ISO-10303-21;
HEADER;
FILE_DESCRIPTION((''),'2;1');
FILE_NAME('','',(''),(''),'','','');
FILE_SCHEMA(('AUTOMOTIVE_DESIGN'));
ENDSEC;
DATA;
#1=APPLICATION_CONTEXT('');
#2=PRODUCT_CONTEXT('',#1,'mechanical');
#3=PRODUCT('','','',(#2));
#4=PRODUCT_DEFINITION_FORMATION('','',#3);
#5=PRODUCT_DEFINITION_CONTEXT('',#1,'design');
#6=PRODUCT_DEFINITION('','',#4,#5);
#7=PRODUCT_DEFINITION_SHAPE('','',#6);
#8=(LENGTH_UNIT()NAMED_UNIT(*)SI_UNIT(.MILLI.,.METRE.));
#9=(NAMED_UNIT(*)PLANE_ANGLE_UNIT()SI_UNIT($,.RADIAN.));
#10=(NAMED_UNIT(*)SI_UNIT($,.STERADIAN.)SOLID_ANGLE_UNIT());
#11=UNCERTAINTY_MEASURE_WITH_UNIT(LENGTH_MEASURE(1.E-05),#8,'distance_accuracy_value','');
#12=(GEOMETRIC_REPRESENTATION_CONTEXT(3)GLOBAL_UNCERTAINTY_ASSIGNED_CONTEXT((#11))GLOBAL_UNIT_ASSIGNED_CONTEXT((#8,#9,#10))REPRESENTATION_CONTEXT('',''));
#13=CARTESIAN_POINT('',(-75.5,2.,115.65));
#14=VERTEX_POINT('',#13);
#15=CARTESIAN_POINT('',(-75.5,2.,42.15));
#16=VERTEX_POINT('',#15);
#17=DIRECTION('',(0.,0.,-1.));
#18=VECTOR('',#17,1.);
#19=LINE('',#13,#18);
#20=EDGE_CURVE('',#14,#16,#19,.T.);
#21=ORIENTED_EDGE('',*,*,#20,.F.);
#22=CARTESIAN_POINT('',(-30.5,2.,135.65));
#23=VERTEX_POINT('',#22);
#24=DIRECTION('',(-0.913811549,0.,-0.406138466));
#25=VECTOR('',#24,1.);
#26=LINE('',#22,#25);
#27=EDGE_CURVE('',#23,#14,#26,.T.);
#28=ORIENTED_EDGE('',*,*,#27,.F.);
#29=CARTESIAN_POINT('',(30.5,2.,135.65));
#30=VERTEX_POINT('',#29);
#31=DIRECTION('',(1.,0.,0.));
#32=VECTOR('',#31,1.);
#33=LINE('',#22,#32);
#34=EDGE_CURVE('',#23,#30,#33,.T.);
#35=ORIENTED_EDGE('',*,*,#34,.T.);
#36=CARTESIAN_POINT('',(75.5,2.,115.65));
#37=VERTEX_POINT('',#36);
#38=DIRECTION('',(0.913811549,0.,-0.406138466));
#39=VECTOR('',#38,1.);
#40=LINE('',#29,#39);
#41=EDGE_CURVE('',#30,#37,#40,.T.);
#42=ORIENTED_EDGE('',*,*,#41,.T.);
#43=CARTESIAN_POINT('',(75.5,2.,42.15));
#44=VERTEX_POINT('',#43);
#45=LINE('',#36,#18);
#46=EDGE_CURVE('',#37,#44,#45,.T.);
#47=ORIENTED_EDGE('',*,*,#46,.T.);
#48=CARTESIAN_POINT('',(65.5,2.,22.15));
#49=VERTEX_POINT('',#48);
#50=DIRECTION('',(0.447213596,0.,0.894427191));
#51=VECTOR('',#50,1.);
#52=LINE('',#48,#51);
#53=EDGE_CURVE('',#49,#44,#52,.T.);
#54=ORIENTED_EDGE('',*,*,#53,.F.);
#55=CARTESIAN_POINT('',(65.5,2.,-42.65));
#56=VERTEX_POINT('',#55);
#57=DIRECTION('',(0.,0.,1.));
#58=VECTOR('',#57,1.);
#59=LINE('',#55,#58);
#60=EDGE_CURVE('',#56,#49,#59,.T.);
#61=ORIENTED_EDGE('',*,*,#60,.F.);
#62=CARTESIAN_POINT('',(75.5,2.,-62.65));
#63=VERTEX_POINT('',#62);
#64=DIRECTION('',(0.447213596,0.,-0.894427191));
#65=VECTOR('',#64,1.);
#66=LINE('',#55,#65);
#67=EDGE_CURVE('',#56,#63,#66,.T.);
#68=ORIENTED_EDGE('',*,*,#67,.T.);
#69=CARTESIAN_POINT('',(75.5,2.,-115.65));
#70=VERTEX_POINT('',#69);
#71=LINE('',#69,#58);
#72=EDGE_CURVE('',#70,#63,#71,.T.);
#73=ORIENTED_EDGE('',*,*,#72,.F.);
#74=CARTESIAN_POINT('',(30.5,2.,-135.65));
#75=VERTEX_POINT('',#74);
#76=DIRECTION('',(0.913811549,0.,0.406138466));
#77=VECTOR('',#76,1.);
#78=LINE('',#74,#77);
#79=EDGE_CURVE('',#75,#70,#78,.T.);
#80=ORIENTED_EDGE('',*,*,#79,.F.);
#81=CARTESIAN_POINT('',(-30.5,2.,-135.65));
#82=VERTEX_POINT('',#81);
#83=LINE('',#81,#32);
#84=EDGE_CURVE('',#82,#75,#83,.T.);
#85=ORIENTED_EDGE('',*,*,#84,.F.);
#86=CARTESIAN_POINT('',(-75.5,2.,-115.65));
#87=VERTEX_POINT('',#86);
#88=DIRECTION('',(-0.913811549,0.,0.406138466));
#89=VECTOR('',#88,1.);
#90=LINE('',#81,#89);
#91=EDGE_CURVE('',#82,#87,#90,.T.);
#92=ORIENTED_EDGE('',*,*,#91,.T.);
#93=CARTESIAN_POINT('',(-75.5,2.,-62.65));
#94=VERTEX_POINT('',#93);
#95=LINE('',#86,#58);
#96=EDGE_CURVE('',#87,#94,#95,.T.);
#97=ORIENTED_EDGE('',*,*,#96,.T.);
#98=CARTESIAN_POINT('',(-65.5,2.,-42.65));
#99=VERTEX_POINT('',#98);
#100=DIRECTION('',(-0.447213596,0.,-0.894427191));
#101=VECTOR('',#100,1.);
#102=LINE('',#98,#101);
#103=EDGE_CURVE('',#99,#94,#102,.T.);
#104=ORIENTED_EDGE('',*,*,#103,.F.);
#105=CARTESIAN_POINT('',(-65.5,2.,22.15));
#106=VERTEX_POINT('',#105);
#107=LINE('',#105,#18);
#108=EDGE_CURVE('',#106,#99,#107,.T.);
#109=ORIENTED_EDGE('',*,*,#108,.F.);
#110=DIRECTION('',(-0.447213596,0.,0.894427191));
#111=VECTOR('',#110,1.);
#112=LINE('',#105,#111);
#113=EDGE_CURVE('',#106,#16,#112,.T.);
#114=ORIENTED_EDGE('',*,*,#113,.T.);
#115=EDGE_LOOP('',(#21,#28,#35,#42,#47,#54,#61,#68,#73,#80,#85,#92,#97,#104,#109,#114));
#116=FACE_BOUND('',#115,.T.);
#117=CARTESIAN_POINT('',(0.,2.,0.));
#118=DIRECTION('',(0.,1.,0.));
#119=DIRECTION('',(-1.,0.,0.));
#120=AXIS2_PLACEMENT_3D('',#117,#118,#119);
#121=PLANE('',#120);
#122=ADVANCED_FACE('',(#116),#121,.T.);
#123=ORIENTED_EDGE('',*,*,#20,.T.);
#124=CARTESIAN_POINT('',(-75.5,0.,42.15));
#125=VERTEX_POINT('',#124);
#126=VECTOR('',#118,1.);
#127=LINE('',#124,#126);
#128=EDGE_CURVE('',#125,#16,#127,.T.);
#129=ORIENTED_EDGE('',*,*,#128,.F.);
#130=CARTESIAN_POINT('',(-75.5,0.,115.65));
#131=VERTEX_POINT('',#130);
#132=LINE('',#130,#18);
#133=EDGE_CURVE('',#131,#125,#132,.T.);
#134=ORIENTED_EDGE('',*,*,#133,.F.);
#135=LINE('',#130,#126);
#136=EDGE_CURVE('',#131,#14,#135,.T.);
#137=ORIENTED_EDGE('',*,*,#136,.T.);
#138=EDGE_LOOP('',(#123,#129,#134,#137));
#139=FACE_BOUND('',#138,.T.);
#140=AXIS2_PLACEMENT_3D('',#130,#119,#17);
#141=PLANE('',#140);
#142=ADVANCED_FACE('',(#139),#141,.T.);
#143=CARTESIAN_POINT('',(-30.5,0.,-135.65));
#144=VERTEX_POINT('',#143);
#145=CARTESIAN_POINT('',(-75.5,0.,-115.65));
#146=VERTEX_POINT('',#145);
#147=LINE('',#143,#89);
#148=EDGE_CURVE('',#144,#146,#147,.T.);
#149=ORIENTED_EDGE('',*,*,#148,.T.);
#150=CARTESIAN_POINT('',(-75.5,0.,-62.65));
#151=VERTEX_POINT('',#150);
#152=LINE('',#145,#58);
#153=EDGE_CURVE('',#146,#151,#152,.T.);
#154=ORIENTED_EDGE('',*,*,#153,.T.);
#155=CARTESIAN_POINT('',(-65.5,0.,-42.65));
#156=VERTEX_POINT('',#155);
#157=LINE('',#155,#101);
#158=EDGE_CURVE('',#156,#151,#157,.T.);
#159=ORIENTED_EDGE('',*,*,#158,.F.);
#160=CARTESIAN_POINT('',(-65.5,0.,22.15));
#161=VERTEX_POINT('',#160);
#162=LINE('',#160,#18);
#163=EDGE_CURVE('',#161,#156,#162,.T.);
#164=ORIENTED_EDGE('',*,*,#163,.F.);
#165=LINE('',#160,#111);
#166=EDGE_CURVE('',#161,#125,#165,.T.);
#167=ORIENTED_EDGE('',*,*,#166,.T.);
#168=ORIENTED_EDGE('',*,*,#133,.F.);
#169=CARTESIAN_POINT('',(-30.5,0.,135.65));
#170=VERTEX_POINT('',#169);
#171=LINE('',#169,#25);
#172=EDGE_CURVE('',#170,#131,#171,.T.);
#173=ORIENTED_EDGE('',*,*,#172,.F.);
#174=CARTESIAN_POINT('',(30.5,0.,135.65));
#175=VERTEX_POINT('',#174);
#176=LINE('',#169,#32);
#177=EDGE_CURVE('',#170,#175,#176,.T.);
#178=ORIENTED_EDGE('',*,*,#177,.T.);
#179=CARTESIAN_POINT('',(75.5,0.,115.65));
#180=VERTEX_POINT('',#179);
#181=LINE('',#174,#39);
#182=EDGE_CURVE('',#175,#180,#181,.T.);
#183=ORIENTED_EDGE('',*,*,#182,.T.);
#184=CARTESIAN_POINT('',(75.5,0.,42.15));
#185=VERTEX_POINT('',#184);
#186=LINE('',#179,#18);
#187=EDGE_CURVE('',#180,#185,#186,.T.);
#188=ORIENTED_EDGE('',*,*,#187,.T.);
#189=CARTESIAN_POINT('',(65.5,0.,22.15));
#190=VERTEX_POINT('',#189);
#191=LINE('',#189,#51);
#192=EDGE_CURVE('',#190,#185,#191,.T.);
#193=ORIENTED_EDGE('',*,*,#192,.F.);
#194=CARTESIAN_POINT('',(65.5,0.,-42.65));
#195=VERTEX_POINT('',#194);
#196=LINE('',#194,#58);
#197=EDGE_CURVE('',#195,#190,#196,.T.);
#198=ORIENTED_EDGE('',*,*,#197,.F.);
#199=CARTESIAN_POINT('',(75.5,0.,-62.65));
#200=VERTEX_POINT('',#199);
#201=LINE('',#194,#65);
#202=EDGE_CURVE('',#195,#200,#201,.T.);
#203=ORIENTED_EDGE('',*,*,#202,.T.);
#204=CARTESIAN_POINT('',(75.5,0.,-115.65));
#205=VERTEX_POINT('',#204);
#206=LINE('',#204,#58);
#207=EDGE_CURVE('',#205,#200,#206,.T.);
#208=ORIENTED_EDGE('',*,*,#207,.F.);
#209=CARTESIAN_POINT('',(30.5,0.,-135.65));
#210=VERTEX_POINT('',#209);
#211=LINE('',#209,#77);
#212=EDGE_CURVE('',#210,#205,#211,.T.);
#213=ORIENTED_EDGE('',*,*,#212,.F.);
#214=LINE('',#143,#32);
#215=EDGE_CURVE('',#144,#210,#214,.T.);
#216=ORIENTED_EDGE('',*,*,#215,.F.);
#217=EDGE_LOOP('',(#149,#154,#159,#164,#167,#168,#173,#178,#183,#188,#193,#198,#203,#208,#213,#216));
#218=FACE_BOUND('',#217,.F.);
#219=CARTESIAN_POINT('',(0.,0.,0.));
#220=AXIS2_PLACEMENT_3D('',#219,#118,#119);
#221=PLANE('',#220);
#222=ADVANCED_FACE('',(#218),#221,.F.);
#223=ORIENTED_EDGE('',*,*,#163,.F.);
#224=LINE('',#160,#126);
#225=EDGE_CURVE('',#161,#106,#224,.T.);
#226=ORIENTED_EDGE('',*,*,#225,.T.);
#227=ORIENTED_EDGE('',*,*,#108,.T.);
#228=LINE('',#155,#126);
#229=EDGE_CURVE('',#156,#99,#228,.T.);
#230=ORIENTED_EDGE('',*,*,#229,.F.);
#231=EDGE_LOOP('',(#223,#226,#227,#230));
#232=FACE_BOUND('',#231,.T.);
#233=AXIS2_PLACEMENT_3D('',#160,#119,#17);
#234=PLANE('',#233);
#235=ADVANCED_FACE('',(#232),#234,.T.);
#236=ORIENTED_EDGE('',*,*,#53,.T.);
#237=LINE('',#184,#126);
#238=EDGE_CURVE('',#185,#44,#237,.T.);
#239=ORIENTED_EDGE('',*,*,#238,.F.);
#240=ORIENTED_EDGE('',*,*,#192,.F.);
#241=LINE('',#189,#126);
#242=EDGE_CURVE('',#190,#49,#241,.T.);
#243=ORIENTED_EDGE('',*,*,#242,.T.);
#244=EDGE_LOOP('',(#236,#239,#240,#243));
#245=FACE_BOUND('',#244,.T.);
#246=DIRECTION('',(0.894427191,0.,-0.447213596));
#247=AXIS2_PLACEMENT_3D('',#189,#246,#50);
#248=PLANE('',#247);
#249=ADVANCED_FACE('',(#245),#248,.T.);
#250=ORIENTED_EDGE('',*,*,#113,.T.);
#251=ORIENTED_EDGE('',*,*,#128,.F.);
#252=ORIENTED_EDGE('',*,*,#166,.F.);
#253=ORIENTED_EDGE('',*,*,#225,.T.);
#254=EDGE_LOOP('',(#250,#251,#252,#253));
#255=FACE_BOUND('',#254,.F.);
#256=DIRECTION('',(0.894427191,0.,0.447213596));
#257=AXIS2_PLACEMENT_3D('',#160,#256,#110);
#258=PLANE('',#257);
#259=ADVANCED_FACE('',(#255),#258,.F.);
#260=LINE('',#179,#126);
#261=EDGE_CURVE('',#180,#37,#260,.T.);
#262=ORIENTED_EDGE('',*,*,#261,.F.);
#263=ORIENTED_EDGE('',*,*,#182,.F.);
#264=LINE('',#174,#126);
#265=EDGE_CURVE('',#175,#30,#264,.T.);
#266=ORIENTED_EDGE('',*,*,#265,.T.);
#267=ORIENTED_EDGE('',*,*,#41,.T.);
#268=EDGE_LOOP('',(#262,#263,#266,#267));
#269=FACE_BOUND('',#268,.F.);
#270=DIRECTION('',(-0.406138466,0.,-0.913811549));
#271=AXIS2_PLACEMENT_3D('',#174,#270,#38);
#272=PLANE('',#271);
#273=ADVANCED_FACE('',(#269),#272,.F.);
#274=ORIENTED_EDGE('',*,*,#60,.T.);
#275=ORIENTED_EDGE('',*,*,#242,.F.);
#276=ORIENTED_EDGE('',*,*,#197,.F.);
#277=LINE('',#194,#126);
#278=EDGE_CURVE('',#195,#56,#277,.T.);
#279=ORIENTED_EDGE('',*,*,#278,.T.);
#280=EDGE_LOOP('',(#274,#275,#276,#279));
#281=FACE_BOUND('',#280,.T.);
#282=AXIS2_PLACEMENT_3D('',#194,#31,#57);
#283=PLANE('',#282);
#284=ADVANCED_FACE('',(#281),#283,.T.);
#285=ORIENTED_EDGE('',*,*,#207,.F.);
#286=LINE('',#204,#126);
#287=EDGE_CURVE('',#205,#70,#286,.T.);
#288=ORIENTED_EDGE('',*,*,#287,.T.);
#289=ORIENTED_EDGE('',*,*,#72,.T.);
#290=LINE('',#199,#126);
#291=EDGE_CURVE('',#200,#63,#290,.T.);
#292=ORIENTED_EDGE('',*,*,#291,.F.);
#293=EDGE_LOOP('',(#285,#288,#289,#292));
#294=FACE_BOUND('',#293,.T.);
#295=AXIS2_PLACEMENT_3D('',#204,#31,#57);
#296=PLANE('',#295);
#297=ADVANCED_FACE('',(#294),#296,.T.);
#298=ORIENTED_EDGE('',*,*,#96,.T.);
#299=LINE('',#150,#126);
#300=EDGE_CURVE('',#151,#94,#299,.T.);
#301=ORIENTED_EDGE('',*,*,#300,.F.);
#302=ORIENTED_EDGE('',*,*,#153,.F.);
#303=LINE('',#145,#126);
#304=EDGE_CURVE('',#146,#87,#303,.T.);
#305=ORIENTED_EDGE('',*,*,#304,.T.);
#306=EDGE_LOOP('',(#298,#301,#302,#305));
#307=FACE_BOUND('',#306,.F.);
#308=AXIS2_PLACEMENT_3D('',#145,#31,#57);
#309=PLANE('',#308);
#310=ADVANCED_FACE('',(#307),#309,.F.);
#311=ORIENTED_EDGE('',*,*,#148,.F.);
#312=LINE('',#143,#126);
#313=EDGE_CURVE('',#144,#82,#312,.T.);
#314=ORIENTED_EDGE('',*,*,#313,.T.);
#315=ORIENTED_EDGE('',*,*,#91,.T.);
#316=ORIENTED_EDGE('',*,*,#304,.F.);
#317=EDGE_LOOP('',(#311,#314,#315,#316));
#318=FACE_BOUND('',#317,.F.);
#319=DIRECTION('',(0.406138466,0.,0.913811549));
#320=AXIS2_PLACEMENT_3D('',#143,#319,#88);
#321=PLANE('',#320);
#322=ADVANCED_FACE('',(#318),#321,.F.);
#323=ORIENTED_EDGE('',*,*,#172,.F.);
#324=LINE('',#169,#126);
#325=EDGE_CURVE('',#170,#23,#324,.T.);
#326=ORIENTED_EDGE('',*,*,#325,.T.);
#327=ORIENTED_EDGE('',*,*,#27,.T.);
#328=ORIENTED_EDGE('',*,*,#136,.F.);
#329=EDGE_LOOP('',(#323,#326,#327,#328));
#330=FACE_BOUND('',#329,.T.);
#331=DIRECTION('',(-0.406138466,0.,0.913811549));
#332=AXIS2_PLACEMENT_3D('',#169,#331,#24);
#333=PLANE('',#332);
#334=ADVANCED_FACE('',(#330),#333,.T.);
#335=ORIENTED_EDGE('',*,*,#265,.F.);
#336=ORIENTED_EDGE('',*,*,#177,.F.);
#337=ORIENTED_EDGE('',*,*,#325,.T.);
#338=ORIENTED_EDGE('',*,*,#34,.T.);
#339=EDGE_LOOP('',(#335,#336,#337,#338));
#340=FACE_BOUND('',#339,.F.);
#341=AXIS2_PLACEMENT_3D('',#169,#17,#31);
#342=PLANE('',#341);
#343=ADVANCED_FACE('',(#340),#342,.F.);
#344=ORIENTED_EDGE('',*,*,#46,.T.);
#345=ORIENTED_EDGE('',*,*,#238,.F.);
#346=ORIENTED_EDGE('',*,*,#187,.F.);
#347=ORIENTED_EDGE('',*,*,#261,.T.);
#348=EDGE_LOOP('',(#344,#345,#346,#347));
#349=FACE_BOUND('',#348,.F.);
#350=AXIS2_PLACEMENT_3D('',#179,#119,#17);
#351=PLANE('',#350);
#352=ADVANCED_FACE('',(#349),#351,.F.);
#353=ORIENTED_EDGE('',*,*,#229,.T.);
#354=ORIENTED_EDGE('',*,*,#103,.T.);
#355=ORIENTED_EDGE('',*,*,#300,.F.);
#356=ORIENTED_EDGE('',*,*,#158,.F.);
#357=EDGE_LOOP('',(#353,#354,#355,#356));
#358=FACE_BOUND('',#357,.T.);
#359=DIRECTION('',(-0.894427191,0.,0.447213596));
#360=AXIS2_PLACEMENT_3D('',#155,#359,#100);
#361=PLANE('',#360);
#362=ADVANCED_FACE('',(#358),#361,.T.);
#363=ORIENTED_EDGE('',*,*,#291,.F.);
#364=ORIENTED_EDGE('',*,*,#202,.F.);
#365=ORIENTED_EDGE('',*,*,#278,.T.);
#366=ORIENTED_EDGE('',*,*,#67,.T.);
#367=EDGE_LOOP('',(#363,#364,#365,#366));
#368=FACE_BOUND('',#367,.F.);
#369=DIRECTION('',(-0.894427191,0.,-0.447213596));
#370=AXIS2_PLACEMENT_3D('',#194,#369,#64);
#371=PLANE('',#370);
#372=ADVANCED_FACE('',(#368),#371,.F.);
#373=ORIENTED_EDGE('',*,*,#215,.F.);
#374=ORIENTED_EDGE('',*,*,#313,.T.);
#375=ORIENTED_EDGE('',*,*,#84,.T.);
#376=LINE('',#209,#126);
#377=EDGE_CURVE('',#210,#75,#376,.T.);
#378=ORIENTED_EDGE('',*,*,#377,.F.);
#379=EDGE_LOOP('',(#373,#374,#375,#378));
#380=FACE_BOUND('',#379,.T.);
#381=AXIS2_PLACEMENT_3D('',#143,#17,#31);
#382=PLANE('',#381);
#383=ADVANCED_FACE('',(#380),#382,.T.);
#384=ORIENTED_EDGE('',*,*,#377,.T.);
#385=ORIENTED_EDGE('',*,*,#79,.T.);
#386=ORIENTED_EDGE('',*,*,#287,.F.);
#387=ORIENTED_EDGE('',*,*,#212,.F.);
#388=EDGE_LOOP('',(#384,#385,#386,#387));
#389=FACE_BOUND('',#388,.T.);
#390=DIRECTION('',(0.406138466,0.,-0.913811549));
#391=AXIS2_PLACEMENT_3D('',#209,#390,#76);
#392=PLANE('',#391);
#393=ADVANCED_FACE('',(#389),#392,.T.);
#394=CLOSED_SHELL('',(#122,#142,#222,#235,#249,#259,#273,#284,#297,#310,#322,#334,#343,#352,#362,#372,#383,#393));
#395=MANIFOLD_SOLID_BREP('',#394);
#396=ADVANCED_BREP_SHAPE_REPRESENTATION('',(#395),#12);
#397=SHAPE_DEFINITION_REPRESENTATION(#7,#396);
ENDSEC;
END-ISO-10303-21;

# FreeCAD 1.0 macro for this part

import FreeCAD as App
import Part
import Sketcher
Q = App.Units.Quantity


def add_polygon(sketch, points):
    """Adds a closed chain of lines whose ends are joined by coincident constraints."""
    first, n = sketch.GeometryCount, len(points)
    for a, b in zip(points, points[1:] + points[:1]):
        sketch.addGeometry(Part.LineSegment(App.Vector(*a, 0), App.Vector(*b, 0)), False)
    for i in range(n):
        sketch.addConstraint(Sketcher.Constraint("Coincident", first + i, 2, first + (i + 1) % n, 1))

doc = App.newDocument("Part")
params = doc.addObject("Spreadsheet::Sheet", "Params")
for row, (alias, value) in enumerate([
    ("sketch1_width", "61 mm"),
    ("sketch1_height", "53 mm"),
    ("sketch1_height2", "64.8 mm"),
    ("sketch1_height3", "73.5 mm"),
    ("pad1_length", "2 mm"),
], start=1):
    params.set(f"A{row}", alias)
    params.set(f"B{row}", "=" + value)
    params.setAlias(f"B{row}", alias)

body = doc.addObject("PartDesign::Body", "Body")

sketch1 = doc.addObject("Sketcher::SketchObject", "Sketch")
body.addObject(sketch1)
sketch1.AttachmentSupport = (doc.XZ_Plane, [""])
sketch1.MapMode = "FlatFace"
add_polygon(sketch1, [(75.5, -62.65), (75.5, -115.65), (30.5, -135.65), (-30.5, -135.65), (-75.5, -115.65), (-75.5, -62.65), (-65.5, -42.65), (-65.5, 22.15), (-75.5, 42.15), (-75.5, 115.65), (-30.5, 135.65), (30.5, 135.65), (75.5, 115.65), (75.5, 42.15), (65.5, 22.15), (65.5, -42.65)])
sketch1.addConstraint(Sketcher.Constraint("Vertical", 0))
sketch1.addConstraint(Sketcher.Constraint("Horizontal", 2))
sketch1.addConstraint(Sketcher.Constraint("Vertical", 4))
sketch1.addConstraint(Sketcher.Constraint("Vertical", 6))
sketch1.addConstraint(Sketcher.Constraint("Vertical", 8))
sketch1.addConstraint(Sketcher.Constraint("Horizontal", 10))
sketch1.addConstraint(Sketcher.Constraint("Vertical", 12))
sketch1.addConstraint(Sketcher.Constraint("Vertical", 14))
sketch1.addConstraint(Sketcher.Constraint("Symmetric", 0, 2, 8, 2, -1, 1))
sketch1.addConstraint(Sketcher.Constraint("Symmetric", 1, 2, 9, 2, -1, 1))
sketch1.addConstraint(Sketcher.Constraint("Symmetric", 3, 2, 11, 2, -1, 1))
sketch1.addConstraint(Sketcher.Constraint("Symmetric", 0, 2, 3, 2, -2))
sketch1.addConstraint(Sketcher.Constraint("Symmetric", 6, 2, 13, 2, -2))
sketch1.addConstraint(Sketcher.Constraint("Parallel", 3, 11))
sketch1.addConstraint(Sketcher.Constraint("Parallel", 5, 13))
sketch1.addConstraint(Sketcher.Constraint("Parallel", 7, 15))
sketch1.addConstraint(Sketcher.Constraint("Horizontal", 7, 2, 12, 2))
sketch1.addConstraint(Sketcher.Constraint("Horizontal", 5, 2, 14, 2))
sketch1.addConstraint(Sketcher.Constraint("Vertical", 2, 2, 9, 2))
sketch1.addConstraint(Sketcher.Constraint("DistanceX", 2, 2, 2, 1, Q("61 mm")))
sketch1.addConstraint(Sketcher.Constraint("DistanceY", 0, 2, 0, 1, Q("53 mm")))
sketch1.addConstraint(Sketcher.Constraint("DistanceY", 6, 1, 6, 2, Q("64.8 mm")))
sketch1.addConstraint(Sketcher.Constraint("DistanceY", 8, 1, 8, 2, Q("73.5 mm")))
sketch1.addConstraint(Sketcher.Constraint("DistanceX", 1, 2, 0, 2, Q("45 mm")))
sketch1.addConstraint(Sketcher.Constraint("DistanceY", 1, 2, 0, 2, Q("20 mm")))
sketch1.addConstraint(Sketcher.Constraint("DistanceX", 4, 2, 5, 2, Q("10 mm")))
sketch1.addConstraint(Sketcher.Constraint("DistanceY", 4, 2, 5, 2, Q("20 mm")))
sketch1.setExpression("Constraints[35]", "Params.sketch1_width")
sketch1.setExpression("Constraints[36]", "Params.sketch1_height")
sketch1.setExpression("Constraints[37]", "Params.sketch1_height2")
sketch1.setExpression("Constraints[38]", "Params.sketch1_height3")
pad1 = doc.addObject("PartDesign::Pad", "Pad")
body.addObject(pad1)
pad1.Profile = sketch1
pad1.setExpression("Length", "Params.pad1_length")
pad1.Reversed = True

doc.recompute()
